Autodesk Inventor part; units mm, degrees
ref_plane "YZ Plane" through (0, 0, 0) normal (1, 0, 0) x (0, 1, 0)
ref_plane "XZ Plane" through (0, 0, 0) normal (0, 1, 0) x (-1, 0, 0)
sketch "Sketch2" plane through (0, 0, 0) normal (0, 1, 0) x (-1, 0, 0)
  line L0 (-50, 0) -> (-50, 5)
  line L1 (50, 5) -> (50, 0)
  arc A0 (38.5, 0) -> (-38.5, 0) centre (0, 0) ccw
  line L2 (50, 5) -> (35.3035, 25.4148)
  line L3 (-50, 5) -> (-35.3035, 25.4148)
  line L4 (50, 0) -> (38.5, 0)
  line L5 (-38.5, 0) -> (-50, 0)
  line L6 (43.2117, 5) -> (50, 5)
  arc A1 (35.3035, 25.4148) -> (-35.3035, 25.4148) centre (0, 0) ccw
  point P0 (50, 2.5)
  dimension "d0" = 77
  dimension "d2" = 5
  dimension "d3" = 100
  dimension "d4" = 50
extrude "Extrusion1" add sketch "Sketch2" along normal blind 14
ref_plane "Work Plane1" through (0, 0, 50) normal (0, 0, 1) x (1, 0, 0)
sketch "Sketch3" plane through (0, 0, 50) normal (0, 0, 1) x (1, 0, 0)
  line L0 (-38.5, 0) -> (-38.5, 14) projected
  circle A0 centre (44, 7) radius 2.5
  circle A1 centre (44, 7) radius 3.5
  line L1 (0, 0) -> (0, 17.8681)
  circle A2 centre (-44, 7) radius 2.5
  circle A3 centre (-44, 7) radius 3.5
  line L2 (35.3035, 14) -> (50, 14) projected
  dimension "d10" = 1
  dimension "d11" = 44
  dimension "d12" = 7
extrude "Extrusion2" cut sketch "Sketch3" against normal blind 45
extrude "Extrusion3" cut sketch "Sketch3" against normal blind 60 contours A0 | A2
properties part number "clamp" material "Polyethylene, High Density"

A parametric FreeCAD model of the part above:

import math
import FreeCAD as App
import Part
import Sketcher

V = App.Vector
Q = App.Units.Quantity

doc = App.newDocument("Part")
body = doc.addObject("PartDesign::Body", "Body")

sketch1 = doc.addObject("Sketcher::SketchObject", "Sketch")
body.addObject(sketch1)
sketch1.AttachmentSupport = (doc.XZ_Plane, [""])
sketch1.MapMode = "FlatFace"
sketch1.addGeometry(Part.LineSegment(V(50, 5, 0), V(50, 0, 0)), False)
sketch1.addGeometry(Part.LineSegment(V(50, 0, 0), V(38, 0, 0)), False)
sketch1.addGeometry(Part.ArcOfCircle(Part.Circle(V(0, 0, 0), V(0, 0, 1), 38), math.radians(0), math.radians(180)), False)
sketch1.addGeometry(Part.LineSegment(V(-38, 0, 0), V(-50, 0, 0)), False)
sketch1.addGeometry(Part.LineSegment(V(-50, 0, 0), V(-50, 5, 0)), False)
sketch1.addGeometry(Part.LineSegment(V(-50, 5, 0), V(-35, 25, 0)), False)
sketch1.addGeometry(Part.ArcOfCircle(Part.Circle(V(0, 0, 0), V(0, 0, 1), 43), math.radians(36), math.radians(144)), False)
sketch1.addGeometry(Part.LineSegment(V(35, 25, 0), V(50, 5, 0)), False)
sketch1.addConstraint(Sketcher.Constraint("Coincident", 0, 2, 1, 1))
sketch1.addConstraint(Sketcher.Constraint("Coincident", 1, 2, 2, 1))
sketch1.addConstraint(Sketcher.Constraint("Coincident", 2, 2, 3, 1))
sketch1.addConstraint(Sketcher.Constraint("Coincident", 3, 2, 4, 1))
sketch1.addConstraint(Sketcher.Constraint("Coincident", 4, 2, 5, 1))
sketch1.addConstraint(Sketcher.Constraint("Tangent", 5, 2, 6, 2))
sketch1.addConstraint(Sketcher.Constraint("Tangent", 6, 1, 7, 1))
sketch1.addConstraint(Sketcher.Constraint("Coincident", 7, 2, 0, 1))
sketch1.addConstraint(Sketcher.Constraint("Vertical", 0))
sketch1.addConstraint(Sketcher.Constraint("Horizontal", 1))
sketch1.addConstraint(Sketcher.Constraint("Horizontal", 3))
sketch1.addConstraint(Sketcher.Constraint("Vertical", 4))
sketch1.addConstraint(Sketcher.Constraint("Coincident", 2, 3, -1, 1))
sketch1.addConstraint(Sketcher.Constraint("Coincident", 6, 3, -1, 1))
sketch1.addConstraint(Sketcher.Constraint("Symmetric", 0, 2, 3, 2, -1, 1))
sketch1.addConstraint(Sketcher.Constraint("PointOnObject", 0, 2, -1))
sketch1.addConstraint(Sketcher.Constraint("Horizontal", 5, 2, 6, 1))
sketch1.addConstraint(Sketcher.Constraint("Radius", 2, Q("38.5 mm")))
sketch1.addConstraint(Sketcher.Constraint("DistanceY", 0, 2, 0, 1, Q("5 mm")))
sketch1.addConstraint(Sketcher.Constraint("DistanceX", -1, 1, 0, 2, Q("50 mm")))
sketch1.addConstraint(Sketcher.Constraint("Radius", 6, Q("43.5 mm")))
pad1 = doc.addObject("PartDesign::Pad", "Pad")
body.addObject(pad1)
pad1.Profile = sketch1
pad1.Length = 14
pad1.Reversed = True

sketch2 = doc.addObject("Sketcher::SketchObject", "Sketch001")
body.addObject(sketch2)
sketch2.AttachmentSupport = (doc.XY_Plane, [""])
sketch2.MapMode = "FlatFace"
sketch2.AttachmentOffset = App.Placement(V(0, 0, 50), App.Rotation())
sketch2.addGeometry(Part.Circle(V(44, 7, 0), V(0, 0, 1), 3.5), False)
sketch2.addGeometry(Part.Circle(V(44, 7, 0), V(0, 0, 1), 2.5), False)
sketch2.addGeometry(Part.Circle(V(-44, 7, 0), V(0, 0, 1), 3.5), False)
sketch2.addGeometry(Part.Circle(V(-44, 7, 0), V(0, 0, 1), 2.5), False)
sketch2.addConstraint(Sketcher.Constraint("Coincident", 1, 3, 0, 3))
sketch2.addConstraint(Sketcher.Constraint("Coincident", 3, 3, 2, 3))
sketch2.addConstraint(Sketcher.Constraint("Equal", 0, 2))
sketch2.addConstraint(Sketcher.Constraint("Equal", 1, 3))
sketch2.addConstraint(Sketcher.Constraint("Symmetric", 0, 3, 2, 3, -2))
sketch2.addConstraint(Sketcher.Constraint("Diameter", 0, Q("7 mm")))
sketch2.addConstraint(Sketcher.Constraint("Diameter", 1, Q("5 mm")))
sketch2.addConstraint(Sketcher.Constraint("DistanceX", -1, 1, 0, 3, Q("44 mm")))
sketch2.addConstraint(Sketcher.Constraint("DistanceY", -1, 1, 0, 3, Q("7 mm")))
pocket1 = doc.addObject("PartDesign::Pocket", "Pocket")
body.addObject(pocket1)
pocket1.Profile = sketch2
pocket1.Length = 45

sketch3 = doc.addObject("Sketcher::SketchObject", "Sketch002")
body.addObject(sketch3)
sketch3.AttachmentSupport = (doc.XY_Plane, [""])
sketch3.MapMode = "FlatFace"
sketch3.AttachmentOffset = App.Placement(V(0, 0, 50), App.Rotation())
sketch3.addGeometry(Part.Circle(V(44, 7, 0), V(0, 0, 1), 2.5), False)
sketch3.addGeometry(Part.Circle(V(-44, 7, 0), V(0, 0, 1), 2.5), False)
sketch3.addConstraint(Sketcher.Constraint("Equal", 0, 1))
sketch3.addConstraint(Sketcher.Constraint("Symmetric", 0, 3, 1, 3, -2))
sketch3.addConstraint(Sketcher.Constraint("Diameter", 0, Q("5 mm")))
sketch3.addConstraint(Sketcher.Constraint("DistanceX", -1, 1, 0, 3, Q("44 mm")))
sketch3.addConstraint(Sketcher.Constraint("DistanceY", -1, 1, 0, 3, Q("7 mm")))
pocket2 = doc.addObject("PartDesign::Pocket", "Pocket001")
body.addObject(pocket2)
pocket2.Profile = sketch3
pocket2.Length = 60

doc.recompute()
